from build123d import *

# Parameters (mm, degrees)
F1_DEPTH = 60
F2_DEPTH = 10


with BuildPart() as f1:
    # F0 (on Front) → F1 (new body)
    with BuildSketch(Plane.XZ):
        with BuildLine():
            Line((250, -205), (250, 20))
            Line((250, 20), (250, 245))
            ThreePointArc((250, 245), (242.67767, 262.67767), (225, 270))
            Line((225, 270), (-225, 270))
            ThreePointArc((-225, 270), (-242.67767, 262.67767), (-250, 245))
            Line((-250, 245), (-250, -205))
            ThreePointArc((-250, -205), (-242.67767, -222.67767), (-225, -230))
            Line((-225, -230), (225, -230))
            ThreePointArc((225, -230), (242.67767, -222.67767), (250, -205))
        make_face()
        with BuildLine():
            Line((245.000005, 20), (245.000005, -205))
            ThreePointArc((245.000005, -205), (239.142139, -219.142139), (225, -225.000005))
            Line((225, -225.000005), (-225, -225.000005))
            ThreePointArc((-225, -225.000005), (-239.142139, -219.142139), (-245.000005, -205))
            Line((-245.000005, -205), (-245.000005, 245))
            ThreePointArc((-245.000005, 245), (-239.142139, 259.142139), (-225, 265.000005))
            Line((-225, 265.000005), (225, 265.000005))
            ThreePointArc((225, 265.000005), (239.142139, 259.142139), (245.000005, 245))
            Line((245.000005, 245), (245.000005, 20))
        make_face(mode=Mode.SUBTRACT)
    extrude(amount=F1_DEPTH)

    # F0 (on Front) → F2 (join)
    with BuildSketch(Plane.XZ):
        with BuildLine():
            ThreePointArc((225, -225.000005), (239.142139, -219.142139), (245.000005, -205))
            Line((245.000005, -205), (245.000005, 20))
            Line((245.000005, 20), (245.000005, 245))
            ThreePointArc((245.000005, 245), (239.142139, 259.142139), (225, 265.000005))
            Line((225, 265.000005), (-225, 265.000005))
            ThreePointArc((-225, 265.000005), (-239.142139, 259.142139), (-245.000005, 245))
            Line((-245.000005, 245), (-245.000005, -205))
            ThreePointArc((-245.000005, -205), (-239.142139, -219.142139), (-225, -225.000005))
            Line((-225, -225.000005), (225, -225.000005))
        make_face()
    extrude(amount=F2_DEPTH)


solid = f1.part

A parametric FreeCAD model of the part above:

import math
import FreeCAD as App
import Part
import Sketcher

doc = App.newDocument("Part")
body = doc.addObject("PartDesign::Body", "Body")

# Sketch on XZ plane
sketch1 = body.newObject("Sketcher::SketchObject", "Sketch")
sketch1.AttachmentSupport = (doc.getObject("XZ_Plane"), [""])
sketch1.MapMode = "FlatFace"
sketch1.addGeometry(Part.LineSegment(App.Vector(250, -205, 0), App.Vector(250, 245, 0)), False)
sketch1.addGeometry(Part.ArcOfCircle(Part.Circle(App.Vector(225.000002, 245.000002, 0), App.Vector(0, 0, 1), 24.999998), math.radians(-0.000004), math.radians(90.000004)), False)
sketch1.addGeometry(Part.LineSegment(App.Vector(225, 270, 0), App.Vector(-225, 270, 0)), False)
sketch1.addGeometry(Part.ArcOfCircle(Part.Circle(App.Vector(-225.000002, 245.000002, 0), App.Vector(0, 0, 1), 24.999998), math.radians(89.999996), math.radians(180.000004)), False)
sketch1.addGeometry(Part.LineSegment(App.Vector(-250, 245, 0), App.Vector(-250, -205, 0)), False)
sketch1.addGeometry(Part.ArcOfCircle(Part.Circle(App.Vector(-225.000002, -205.000002, 0), App.Vector(0, 0, 1), 24.999998), math.radians(179.999996), math.radians(270.000004)), False)
sketch1.addGeometry(Part.LineSegment(App.Vector(-225, -230, 0), App.Vector(225, -230, 0)), False)
sketch1.addGeometry(Part.ArcOfCircle(Part.Circle(App.Vector(225.000002, -205.000002, 0), App.Vector(0, 0, 1), 24.999998), math.radians(-90.000004), math.radians(0.000004)), False)
sketch1.addGeometry(Part.LineSegment(App.Vector(245.000005, 245, 0), App.Vector(245.000005, -205, 0)), False)
sketch1.addGeometry(Part.ArcOfCircle(Part.Circle(App.Vector(224.999999, -204.999999, 0), App.Vector(0, 0, 1), 20.000006), math.radians(-89.999998), math.radians(-0.000002)), False)
sketch1.addGeometry(Part.LineSegment(App.Vector(225, -225.000005, 0), App.Vector(-225, -225.000005, 0)), False)
sketch1.addGeometry(Part.ArcOfCircle(Part.Circle(App.Vector(-224.999999, -204.999999, 0), App.Vector(0, 0, 1), 20.000006), math.radians(-179.999998), math.radians(-90.000002)), False)
sketch1.addGeometry(Part.LineSegment(App.Vector(-245.000005, -205, 0), App.Vector(-245.000005, 245, 0)), False)
sketch1.addGeometry(Part.ArcOfCircle(Part.Circle(App.Vector(-224.999999, 244.999999, 0), App.Vector(0, 0, 1), 20.000006), math.radians(90.000002), math.radians(179.999998)), False)
sketch1.addGeometry(Part.LineSegment(App.Vector(-225, 265.000005, 0), App.Vector(225, 265.000005, 0)), False)
sketch1.addGeometry(Part.ArcOfCircle(Part.Circle(App.Vector(224.999999, 244.999999, 0), App.Vector(0, 0, 1), 20.000006), math.radians(0.000002), math.radians(89.999998)), False)
sketch1.addConstraint(Sketcher.Constraint("Tangent", 0, 2, 1, 1))
sketch1.addConstraint(Sketcher.Constraint("Tangent", 1, 2, 2, 1))
sketch1.addConstraint(Sketcher.Constraint("Tangent", 2, 2, 3, 1))
sketch1.addConstraint(Sketcher.Constraint("Tangent", 3, 2, 4, 1))
sketch1.addConstraint(Sketcher.Constraint("Tangent", 4, 2, 5, 1))
sketch1.addConstraint(Sketcher.Constraint("Tangent", 5, 2, 6, 1))
sketch1.addConstraint(Sketcher.Constraint("Tangent", 6, 2, 7, 1))
sketch1.addConstraint(Sketcher.Constraint("Tangent", 7, 2, 0, 1))
sketch1.addConstraint(Sketcher.Constraint("Tangent", 8, 2, 9, 2))
sketch1.addConstraint(Sketcher.Constraint("Tangent", 9, 1, 10, 1))
sketch1.addConstraint(Sketcher.Constraint("Tangent", 10, 2, 11, 2))
sketch1.addConstraint(Sketcher.Constraint("Tangent", 11, 1, 12, 1))
sketch1.addConstraint(Sketcher.Constraint("Tangent", 12, 2, 13, 2))
sketch1.addConstraint(Sketcher.Constraint("Tangent", 13, 1, 14, 1))
sketch1.addConstraint(Sketcher.Constraint("Tangent", 14, 2, 15, 2))
sketch1.addConstraint(Sketcher.Constraint("Tangent", 15, 1, 8, 1))
sketch1.addConstraint(Sketcher.Constraint("Vertical", 0))
sketch1.addConstraint(Sketcher.Constraint("Horizontal", 2))
sketch1.addConstraint(Sketcher.Constraint("Vertical", 4))
sketch1.addConstraint(Sketcher.Constraint("Horizontal", 6))
sketch1.addConstraint(Sketcher.Constraint("Vertical", 8))
sketch1.addConstraint(Sketcher.Constraint("Horizontal", 10))
sketch1.addConstraint(Sketcher.Constraint("Vertical", 12))
sketch1.addConstraint(Sketcher.Constraint("Horizontal", 14))
sketch1.addConstraint(Sketcher.Constraint("Coincident", 9, 3, 7, 3))
sketch1.addConstraint(Sketcher.Constraint("Coincident", 11, 3, 5, 3))
sketch1.addConstraint(Sketcher.Constraint("Coincident", 13, 3, 3, 3))
sketch1.addConstraint(Sketcher.Constraint("Equal", 1, 3))
sketch1.addConstraint(Sketcher.Constraint("Equal", 3, 5))
sketch1.addConstraint(Sketcher.Constraint("Equal", 5, 7))
sketch1.addConstraint(Sketcher.Constraint("Equal", 13, 15))
sketch1.addConstraint(Sketcher.Constraint("Equal", 14, 0))
sketch1.addConstraint(Sketcher.Constraint("Radius", 1, 24.999998))
sketch1.addConstraint(Sketcher.Constraint("DistanceX", 2, 2, 2, 1, 450.0))
sketch1.addConstraint(Sketcher.Constraint("DistanceX", -1, 1, 1, 3, 225.000002))
sketch1.addConstraint(Sketcher.Constraint("DistanceY", -1, 1, 1, 3, 245.000002))
sketch1.addConstraint(Sketcher.Constraint("Radius", 9, 20.000006))
pad1 = body.newObject("PartDesign::Pad", "Pad")
pad1.Profile = sketch1
pad1.Length = 60

# Sketch on XZ plane
sketch2 = body.newObject("Sketcher::SketchObject", "Sketch001")
sketch2.AttachmentSupport = (doc.getObject("XZ_Plane"), [""])
sketch2.MapMode = "FlatFace"
sketch2.addGeometry(Part.ArcOfCircle(Part.Circle(App.Vector(224.999999, -204.999999, 0), App.Vector(0, 0, 1), 20.000006), math.radians(-89.999998), math.radians(-0.000002)), False)
sketch2.addGeometry(Part.LineSegment(App.Vector(245.000005, -205, 0), App.Vector(245.000005, 245, 0)), False)
sketch2.addGeometry(Part.ArcOfCircle(Part.Circle(App.Vector(224.999999, 244.999999, 0), App.Vector(0, 0, 1), 20.000006), math.radians(0.000002), math.radians(89.999998)), False)
sketch2.addGeometry(Part.LineSegment(App.Vector(225, 265.000005, 0), App.Vector(-225, 265.000005, 0)), False)
sketch2.addGeometry(Part.ArcOfCircle(Part.Circle(App.Vector(-224.999999, 244.999999, 0), App.Vector(0, 0, 1), 20.000006), math.radians(90.000002), math.radians(179.999998)), False)
sketch2.addGeometry(Part.LineSegment(App.Vector(-245.000005, 245, 0), App.Vector(-245.000005, -205, 0)), False)
sketch2.addGeometry(Part.ArcOfCircle(Part.Circle(App.Vector(-224.999999, -204.999999, 0), App.Vector(0, 0, 1), 20.000006), math.radians(-179.999998), math.radians(-90.000002)), False)
sketch2.addGeometry(Part.LineSegment(App.Vector(-225, -225.000005, 0), App.Vector(225, -225.000005, 0)), False)
sketch2.addConstraint(Sketcher.Constraint("Tangent", 0, 2, 1, 1))
sketch2.addConstraint(Sketcher.Constraint("Tangent", 1, 2, 2, 1))
sketch2.addConstraint(Sketcher.Constraint("Tangent", 2, 2, 3, 1))
sketch2.addConstraint(Sketcher.Constraint("Tangent", 3, 2, 4, 1))
sketch2.addConstraint(Sketcher.Constraint("Tangent", 4, 2, 5, 1))
sketch2.addConstraint(Sketcher.Constraint("Tangent", 5, 2, 6, 1))
sketch2.addConstraint(Sketcher.Constraint("Tangent", 6, 2, 7, 1))
sketch2.addConstraint(Sketcher.Constraint("Tangent", 7, 2, 0, 1))
sketch2.addConstraint(Sketcher.Constraint("Vertical", 1))
sketch2.addConstraint(Sketcher.Constraint("Horizontal", 3))
sketch2.addConstraint(Sketcher.Constraint("Vertical", 5))
sketch2.addConstraint(Sketcher.Constraint("Horizontal", 7))
sketch2.addConstraint(Sketcher.Constraint("Equal", 0, 2))
sketch2.addConstraint(Sketcher.Constraint("Equal", 2, 4))
sketch2.addConstraint(Sketcher.Constraint("Equal", 4, 6))
sketch2.addConstraint(Sketcher.Constraint("Equal", 7, 1))
sketch2.addConstraint(Sketcher.Constraint("DistanceX", 3, 2, 3, 1, 450.0))
sketch2.addConstraint(Sketcher.Constraint("DistanceX", -1, 1, 0, 3, 224.999999))
sketch2.addConstraint(Sketcher.Constraint("DistanceY", 0, 3, -1, 1, 204.999999))
sketch2.addConstraint(Sketcher.Constraint("Radius", 0, 20.000006))
pad2 = body.newObject("PartDesign::Pad", "Pad001")
pad2.Profile = sketch2
pad2.Length = 10

doc.recompute()
